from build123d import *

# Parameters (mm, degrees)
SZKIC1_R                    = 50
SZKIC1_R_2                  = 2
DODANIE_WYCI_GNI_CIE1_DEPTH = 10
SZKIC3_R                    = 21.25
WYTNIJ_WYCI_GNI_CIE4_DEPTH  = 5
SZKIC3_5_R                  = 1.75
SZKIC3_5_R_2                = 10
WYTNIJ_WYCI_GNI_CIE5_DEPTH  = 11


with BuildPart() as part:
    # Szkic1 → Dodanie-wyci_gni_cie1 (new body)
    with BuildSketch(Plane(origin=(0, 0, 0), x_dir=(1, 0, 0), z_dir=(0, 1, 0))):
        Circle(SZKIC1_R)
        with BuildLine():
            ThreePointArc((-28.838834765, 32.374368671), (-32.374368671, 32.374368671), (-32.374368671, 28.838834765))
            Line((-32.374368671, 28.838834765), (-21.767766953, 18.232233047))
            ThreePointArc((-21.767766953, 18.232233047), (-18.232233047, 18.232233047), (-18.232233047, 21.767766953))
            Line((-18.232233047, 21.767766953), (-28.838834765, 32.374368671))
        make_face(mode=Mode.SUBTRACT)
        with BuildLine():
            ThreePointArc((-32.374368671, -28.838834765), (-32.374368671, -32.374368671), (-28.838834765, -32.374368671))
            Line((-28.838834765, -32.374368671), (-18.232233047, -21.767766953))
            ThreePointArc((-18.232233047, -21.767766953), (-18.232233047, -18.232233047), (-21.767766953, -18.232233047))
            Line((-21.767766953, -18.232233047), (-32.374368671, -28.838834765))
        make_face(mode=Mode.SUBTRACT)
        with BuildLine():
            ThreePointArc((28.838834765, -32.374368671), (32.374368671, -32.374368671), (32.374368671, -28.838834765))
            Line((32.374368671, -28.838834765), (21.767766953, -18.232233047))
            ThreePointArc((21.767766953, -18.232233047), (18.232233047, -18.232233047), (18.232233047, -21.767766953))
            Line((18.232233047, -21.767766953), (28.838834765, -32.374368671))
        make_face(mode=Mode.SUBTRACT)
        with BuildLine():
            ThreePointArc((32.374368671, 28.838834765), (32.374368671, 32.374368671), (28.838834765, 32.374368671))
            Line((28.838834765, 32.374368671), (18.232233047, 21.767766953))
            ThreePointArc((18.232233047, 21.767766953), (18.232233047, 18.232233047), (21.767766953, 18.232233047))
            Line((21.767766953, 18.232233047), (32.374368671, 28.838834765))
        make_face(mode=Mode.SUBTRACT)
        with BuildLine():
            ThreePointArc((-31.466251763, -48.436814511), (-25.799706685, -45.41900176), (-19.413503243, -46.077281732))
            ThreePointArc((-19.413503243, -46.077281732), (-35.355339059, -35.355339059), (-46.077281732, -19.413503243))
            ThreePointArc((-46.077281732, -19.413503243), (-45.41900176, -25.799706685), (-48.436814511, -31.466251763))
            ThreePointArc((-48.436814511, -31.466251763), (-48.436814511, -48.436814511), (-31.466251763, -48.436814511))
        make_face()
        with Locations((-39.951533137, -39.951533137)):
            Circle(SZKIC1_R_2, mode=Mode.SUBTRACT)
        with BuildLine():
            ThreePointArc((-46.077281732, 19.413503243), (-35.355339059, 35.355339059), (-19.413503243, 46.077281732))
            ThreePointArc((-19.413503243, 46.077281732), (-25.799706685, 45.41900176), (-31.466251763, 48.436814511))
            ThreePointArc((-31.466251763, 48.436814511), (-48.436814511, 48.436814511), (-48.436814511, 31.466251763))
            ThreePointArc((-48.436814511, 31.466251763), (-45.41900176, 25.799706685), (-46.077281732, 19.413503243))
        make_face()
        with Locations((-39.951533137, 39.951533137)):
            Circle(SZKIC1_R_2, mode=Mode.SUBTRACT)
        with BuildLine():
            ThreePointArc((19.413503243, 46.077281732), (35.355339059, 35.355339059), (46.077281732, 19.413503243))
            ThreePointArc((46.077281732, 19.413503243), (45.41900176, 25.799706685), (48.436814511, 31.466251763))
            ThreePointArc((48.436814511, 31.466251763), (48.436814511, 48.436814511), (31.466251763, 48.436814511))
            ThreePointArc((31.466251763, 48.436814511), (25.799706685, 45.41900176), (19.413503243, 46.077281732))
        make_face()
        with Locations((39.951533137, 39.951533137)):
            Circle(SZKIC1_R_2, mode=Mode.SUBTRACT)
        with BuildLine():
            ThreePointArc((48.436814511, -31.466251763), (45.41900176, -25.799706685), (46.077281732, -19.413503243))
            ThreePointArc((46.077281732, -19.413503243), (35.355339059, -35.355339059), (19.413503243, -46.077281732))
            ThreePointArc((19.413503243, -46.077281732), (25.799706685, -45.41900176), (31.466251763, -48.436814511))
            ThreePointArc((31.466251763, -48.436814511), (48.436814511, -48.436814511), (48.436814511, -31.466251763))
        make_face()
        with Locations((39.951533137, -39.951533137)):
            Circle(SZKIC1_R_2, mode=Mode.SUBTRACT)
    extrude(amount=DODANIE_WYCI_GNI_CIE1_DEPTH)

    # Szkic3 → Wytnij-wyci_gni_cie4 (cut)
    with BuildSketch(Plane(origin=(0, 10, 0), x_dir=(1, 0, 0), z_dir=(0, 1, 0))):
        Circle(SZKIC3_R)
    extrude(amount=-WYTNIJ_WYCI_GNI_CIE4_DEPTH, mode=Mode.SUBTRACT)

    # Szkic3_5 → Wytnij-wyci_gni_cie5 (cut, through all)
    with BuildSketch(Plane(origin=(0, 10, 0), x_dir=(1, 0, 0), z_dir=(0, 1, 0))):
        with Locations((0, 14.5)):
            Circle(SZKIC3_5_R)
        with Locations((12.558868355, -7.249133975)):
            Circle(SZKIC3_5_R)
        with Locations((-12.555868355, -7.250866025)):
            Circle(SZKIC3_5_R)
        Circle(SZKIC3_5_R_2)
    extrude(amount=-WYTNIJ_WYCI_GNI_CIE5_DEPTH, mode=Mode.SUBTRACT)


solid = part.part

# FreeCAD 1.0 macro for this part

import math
import FreeCAD as App
import Part
import Sketcher
Q = App.Units.Quantity

doc = App.newDocument("Part")
params = doc.addObject("Spreadsheet::Sheet", "Params")
for row, (alias, value) in enumerate([
    ("sketch1_diameter", "4 mm"),
    ("sketch1_radius", "12 mm"),
    ("sketch1_radius2", "50 mm"),
    ("sketch1_radius3", "2.5 mm"),
    ("sketch1_length", "15 mm"),
    ("pad1_length", "10 mm"),
    ("sketch2_diameter", "42.5 mm"),
    ("pocket1_length", "5 mm"),
    ("sketch3_diameter", "20 mm"),
    ("sketch3_diameter2", "3.5 mm"),
], start=1):
    params.set(f"A{row}", alias)
    params.set(f"B{row}", "=" + value)
    params.setAlias(f"B{row}", alias)

body = doc.addObject("PartDesign::Body", "Body")

# Sketch on XZ plane
sketch1 = body.newObject("Sketcher::SketchObject", "Sketch")
sketch1.AttachmentSupport = (doc.getObject("XZ_Plane"), [""])
sketch1.MapMode = "FlatFace"
sketch1.addGeometry([
    Part.ArcOfCircle(Part.Circle(App.Vector(-56.2, 23.7, 0), App.Vector(0, 0, 1), 11), math.radians(-23), math.radians(45)),  # 0
    Part.ArcOfCircle(Part.Circle(App.Vector(-40, 40, 0), App.Vector(0, 0, 1), 12), math.radians(45), math.radians(225)),  # 1
    Part.ArcOfCircle(Part.Circle(App.Vector(-23.7, 56.2, 0), App.Vector(0, 0, 1), 11), math.radians(-135), math.radians(-67)),  # 2
    Part.ArcOfCircle(Part.Circle(App.Vector(0, 0, 0), App.Vector(0, 0, 1), 50), math.radians(67), math.radians(113)),  # 3
    Part.ArcOfCircle(Part.Circle(App.Vector(23.7, 56.2, 0), App.Vector(0, 0, 1), 11), math.radians(-113), math.radians(-45)),  # 4
    Part.ArcOfCircle(Part.Circle(App.Vector(40, 40, 0), App.Vector(0, 0, 1), 12), math.radians(-45), math.radians(135)),  # 5
    Part.ArcOfCircle(Part.Circle(App.Vector(56.2, 23.7, 0), App.Vector(0, 0, 1), 11), math.radians(135), math.radians(203)),  # 6
    Part.ArcOfCircle(Part.Circle(App.Vector(0, 0, 0), App.Vector(0, 0, 1), 50), math.radians(-23), math.radians(23)),  # 7
    Part.ArcOfCircle(Part.Circle(App.Vector(56.2, -23.7, 0), App.Vector(0, 0, 1), 11), math.radians(157), math.radians(225)),  # 8
    Part.ArcOfCircle(Part.Circle(App.Vector(40, -40, 0), App.Vector(0, 0, 1), 12), math.radians(-135), math.radians(45)),  # 9
    Part.ArcOfCircle(Part.Circle(App.Vector(23.7, -56.2, 0), App.Vector(0, 0, 1), 11), math.radians(45), math.radians(113)),  # 10
    Part.ArcOfCircle(Part.Circle(App.Vector(0, 0, 0), App.Vector(0, 0, 1), 50), math.radians(-113), math.radians(-67)),  # 11
    Part.ArcOfCircle(Part.Circle(App.Vector(-23.7, -56.2, 0), App.Vector(0, 0, 1), 11), math.radians(67), math.radians(135)),  # 12
    Part.ArcOfCircle(Part.Circle(App.Vector(-40, -40, 0), App.Vector(0, 0, 1), 12), math.radians(135), math.radians(315)),  # 13
    Part.ArcOfCircle(Part.Circle(App.Vector(-56.2, -23.7, 0), App.Vector(0, 0, 1), 11), math.radians(-45), math.radians(23)),  # 14
    Part.ArcOfCircle(Part.Circle(App.Vector(0, 0, 0), App.Vector(0, 0, 1), 50), math.radians(157), math.radians(203)),  # 15
    Part.Circle(App.Vector(-40, 40, 0), App.Vector(0, 0, 1), 2),  # 16
    Part.ArcOfCircle(Part.Circle(App.Vector(-30.6, 30.6, 0), App.Vector(0, 0, 1), 2.5), math.radians(45), math.radians(225)),  # 17
    Part.LineSegment(App.Vector(-32.4, 28.8, 0), App.Vector(-21.8, 18.2, 0)),  # 18
    Part.ArcOfCircle(Part.Circle(App.Vector(-20, 20, 0), App.Vector(0, 0, 1), 2.5), math.radians(-135), math.radians(45)),  # 19
    Part.LineSegment(App.Vector(-18.2, 21.8, 0), App.Vector(-28.8, 32.4, 0)),  # 20
    Part.Circle(App.Vector(40, 40, 0), App.Vector(0, 0, 1), 2),  # 21
    Part.ArcOfCircle(Part.Circle(App.Vector(30.6, 30.6, 0), App.Vector(0, 0, 1), 2.5), math.radians(-45), math.radians(135)),  # 22
    Part.LineSegment(App.Vector(28.8, 32.4, 0), App.Vector(18.2, 21.8, 0)),  # 23
    Part.ArcOfCircle(Part.Circle(App.Vector(20, 20, 0), App.Vector(0, 0, 1), 2.5), math.radians(135), math.radians(315)),  # 24
    Part.LineSegment(App.Vector(21.8, 18.2, 0), App.Vector(32.4, 28.8, 0)),  # 25
    Part.ArcOfCircle(Part.Circle(App.Vector(-30.6, -30.6, 0), App.Vector(0, 0, 1), 2.5), math.radians(135), math.radians(315)),  # 26
    Part.LineSegment(App.Vector(-28.8, -32.4, 0), App.Vector(-18.2, -21.8, 0)),  # 27
    Part.ArcOfCircle(Part.Circle(App.Vector(-20, -20, 0), App.Vector(0, 0, 1), 2.5), math.radians(-45), math.radians(135)),  # 28
    Part.LineSegment(App.Vector(-21.8, -18.2, 0), App.Vector(-32.4, -28.8, 0)),  # 29
    Part.Circle(App.Vector(-40, -40, 0), App.Vector(0, 0, 1), 2),  # 30
    Part.ArcOfCircle(Part.Circle(App.Vector(30.6, -30.6, 0), App.Vector(0, 0, 1), 2.5), math.radians(-135), math.radians(45)),  # 31
    Part.LineSegment(App.Vector(32.4, -28.8, 0), App.Vector(21.8, -18.2, 0)),  # 32
    Part.ArcOfCircle(Part.Circle(App.Vector(20, -20, 0), App.Vector(0, 0, 1), 2.5), math.radians(45), math.radians(225)),  # 33
    Part.LineSegment(App.Vector(18.2, -21.8, 0), App.Vector(28.8, -32.4, 0)),  # 34
    Part.Circle(App.Vector(40, -40, 0), App.Vector(0, 0, 1), 2),  # 35
], False)
sketch1.addConstraint([
    Sketcher.Constraint("Tangent", 0, 2, 1, 2),
    Sketcher.Constraint("Tangent", 1, 1, 2, 1),
    Sketcher.Constraint("Tangent", 2, 2, 3, 2),
    Sketcher.Constraint("Tangent", 3, 1, 4, 1),
    Sketcher.Constraint("Tangent", 4, 2, 5, 2),
    Sketcher.Constraint("Tangent", 5, 1, 6, 1),
    Sketcher.Constraint("Tangent", 6, 2, 7, 2),
    Sketcher.Constraint("Tangent", 7, 1, 8, 1),
    Sketcher.Constraint("Tangent", 8, 2, 9, 2),
    Sketcher.Constraint("Tangent", 9, 1, 10, 1),
    Sketcher.Constraint("Tangent", 10, 2, 11, 2),
    Sketcher.Constraint("Tangent", 11, 1, 12, 1),
    Sketcher.Constraint("Tangent", 12, 2, 13, 2),
    Sketcher.Constraint("Tangent", 13, 1, 14, 1),
    Sketcher.Constraint("Tangent", 14, 2, 15, 2),
    Sketcher.Constraint("Tangent", 15, 1, 0, 1),
    Sketcher.Constraint("Tangent", 17, 2, 18, 1),
    Sketcher.Constraint("Tangent", 18, 2, 19, 1),
    Sketcher.Constraint("Tangent", 19, 2, 20, 1),
    Sketcher.Constraint("Tangent", 20, 2, 17, 1),
    Sketcher.Constraint("Tangent", 22, 2, 23, 1),
    Sketcher.Constraint("Tangent", 23, 2, 24, 1),
    Sketcher.Constraint("Tangent", 24, 2, 25, 1),
    Sketcher.Constraint("Tangent", 25, 2, 22, 1),
    Sketcher.Constraint("Tangent", 26, 2, 27, 1),
    Sketcher.Constraint("Tangent", 27, 2, 28, 1),
    Sketcher.Constraint("Tangent", 28, 2, 29, 1),
    Sketcher.Constraint("Tangent", 29, 2, 26, 1),
    Sketcher.Constraint("Tangent", 31, 2, 32, 1),
    Sketcher.Constraint("Tangent", 32, 2, 33, 1),
    Sketcher.Constraint("Tangent", 33, 2, 34, 1),
    Sketcher.Constraint("Tangent", 34, 2, 31, 1),
    Sketcher.Constraint("Coincident", 3, 3, -1, 1),
    Sketcher.Constraint("Coincident", 7, 3, -1, 1),
    Sketcher.Constraint("Coincident", 11, 3, -1, 1),
    Sketcher.Constraint("Coincident", 15, 3, -1, 1),
    Sketcher.Constraint("Coincident", 16, 3, 1, 3),
    Sketcher.Constraint("Coincident", 21, 3, 5, 3),
    Sketcher.Constraint("Coincident", 30, 3, 13, 3),
    Sketcher.Constraint("Coincident", 35, 3, 9, 3),
    Sketcher.Constraint("Equal", 0, 2),
    Sketcher.Constraint("Equal", 2, 4),
    Sketcher.Constraint("Equal", 1, 5),
    Sketcher.Constraint("Equal", 4, 6),
    Sketcher.Constraint("Equal", 3, 7),
    Sketcher.Constraint("Equal", 6, 8),
    Sketcher.Constraint("Equal", 5, 9),
    Sketcher.Constraint("Equal", 8, 10),
    Sketcher.Constraint("Equal", 7, 11),
    Sketcher.Constraint("Equal", 10, 12),
    Sketcher.Constraint("Equal", 9, 13),
    Sketcher.Constraint("Equal", 12, 14),
    Sketcher.Constraint("Equal", 11, 15),
    Sketcher.Constraint("Equal", 17, 19),
    Sketcher.Constraint("Equal", 16, 21),
    Sketcher.Constraint("Equal", 19, 22),
    Sketcher.Constraint("Equal", 22, 24),
    Sketcher.Constraint("Equal", 24, 26),
    Sketcher.Constraint("Equal", 26, 28),
    Sketcher.Constraint("Equal", 21, 30),
    Sketcher.Constraint("Equal", 28, 31),
    Sketcher.Constraint("Equal", 31, 33),
    Sketcher.Constraint("Equal", 30, 35),
    Sketcher.Constraint("Symmetric", 1, 3, 9, 3, -1, 1),
    Sketcher.Constraint("Symmetric", 5, 3, 13, 3, -1, 1),
    Sketcher.Constraint("Symmetric", 22, 3, 26, 3, -1, 1),
    Sketcher.Constraint("Symmetric", 24, 3, 28, 3, -1, 1),
    Sketcher.Constraint("Symmetric", 17, 3, 31, 3, -1, 1),
    Sketcher.Constraint("Symmetric", 19, 3, 33, 3, -1, 1),
    Sketcher.Constraint("Symmetric", 1, 3, 5, 3, -2),
    Sketcher.Constraint("Symmetric", 17, 3, 22, 3, -2),
    Sketcher.Constraint("Symmetric", 19, 3, 24, 3, -2),
    Sketcher.Constraint("Perpendicular", 20, 23),
    Sketcher.Constraint("Diameter", 16, Q("4 mm")),
    Sketcher.Constraint("Radius", 1, Q("12 mm")),
    Sketcher.Constraint("Radius", 3, Q("50 mm")),
    Sketcher.Constraint("Radius", 17, Q("2.5 mm")),
    Sketcher.Constraint("Distance", 18, Q("15 mm")),
    Sketcher.Constraint("DistanceX", 19, 3, -1, 1, Q("20 mm")),
    Sketcher.Constraint("DistanceY", -1, 1, 19, 3, Q("20 mm")),
    Sketcher.Constraint("Radius", 0, Q("11.003289 mm")),
    Sketcher.Constraint("DistanceX", 0, 3, 0, 2, Q("7.780501 mm")),
    Sketcher.Constraint("DistanceX", 1, 1, 2, 3, Q("7.780501 mm")),
])
sketch1.setExpression("Constraints[73]", "Params.sketch1_diameter")
sketch1.setExpression("Constraints[74]", "Params.sketch1_radius")
sketch1.setExpression("Constraints[75]", "Params.sketch1_radius2")
sketch1.setExpression("Constraints[76]", "Params.sketch1_radius3")
sketch1.setExpression("Constraints[77]", "Params.sketch1_length")
pad1 = body.newObject("PartDesign::Pad", "Pad")
pad1.Profile = sketch1
pad1.setExpression("Length", "Params.pad1_length")
pad1.Reversed = True

# Sketch on XZ plane
sketch2 = body.newObject("Sketcher::SketchObject", "Sketch001")
sketch2.AttachmentSupport = (doc.getObject("XZ_Plane"), [""])
sketch2.MapMode = "FlatFace"
sketch2.AttachmentOffset = App.Placement(App.Vector(0, 0, -10), App.Rotation())
sketch2.addGeometry(Part.Circle(App.Vector(0, 0, 0), App.Vector(0, 0, 1), 21), False)
sketch2.addConstraint([
    Sketcher.Constraint("Coincident", 0, 3, -1, 1),
    Sketcher.Constraint("Diameter", 0, Q("42.5 mm")),
])
sketch2.setExpression("Constraints[1]", "Params.sketch2_diameter")
pocket1 = body.newObject("PartDesign::Pocket", "Pocket")
pocket1.Profile = sketch2
pocket1.setExpression("Length", "Params.pocket1_length")
pocket1.Reversed = True

# Sketch on XZ plane
sketch3 = body.newObject("Sketcher::SketchObject", "Sketch002")
sketch3.AttachmentSupport = (doc.getObject("XZ_Plane"), [""])
sketch3.MapMode = "FlatFace"
sketch3.AttachmentOffset = App.Placement(App.Vector(0, 0, -10), App.Rotation())
sketch3.addGeometry([
    Part.Circle(App.Vector(0, -14.5, 0), App.Vector(0, 0, 1), 1.8),
    Part.Circle(App.Vector(12.6, 7.2, 0), App.Vector(0, 0, 1), 1.8),
    Part.Circle(App.Vector(-12.6, 7.3, 0), App.Vector(0, 0, 1), 1.8),
    Part.Circle(App.Vector(0, 0, 0), App.Vector(0, 0, 1), 10),
], False)
sketch3.addConstraint([
    Sketcher.Constraint("Coincident", 3, 3, -1, 1),
    Sketcher.Constraint("Equal", 0, 1),
    Sketcher.Constraint("Equal", 1, 2),
    Sketcher.Constraint("PointOnObject", 0, 3, -2),
    Sketcher.Constraint("Diameter", 3, Q("20 mm")),
    Sketcher.Constraint("Diameter", 0, Q("3.5 mm")),
    Sketcher.Constraint("DistanceY", 0, 3, -1, 1, Q("14.5 mm")),
    Sketcher.Constraint("DistanceX", -1, 1, 1, 3, Q("12.558868 mm")),
    Sketcher.Constraint("DistanceX", 2, 3, -1, 1, Q("12.555868 mm")),
    Sketcher.Constraint("DistanceY", -1, 1, 1, 3, Q("7.249134 mm")),
    Sketcher.Constraint("DistanceY", -1, 1, 2, 3, Q("7.250866 mm")),
])
sketch3.setExpression("Constraints[4]", "Params.sketch3_diameter")
sketch3.setExpression("Constraints[5]", "Params.sketch3_diameter2")
pocket2 = body.newObject("PartDesign::Pocket", "Pocket001")
pocket2.Profile = sketch3
pocket2.Type = "ThroughAll"
pocket2.Reversed = True

doc.recompute()
